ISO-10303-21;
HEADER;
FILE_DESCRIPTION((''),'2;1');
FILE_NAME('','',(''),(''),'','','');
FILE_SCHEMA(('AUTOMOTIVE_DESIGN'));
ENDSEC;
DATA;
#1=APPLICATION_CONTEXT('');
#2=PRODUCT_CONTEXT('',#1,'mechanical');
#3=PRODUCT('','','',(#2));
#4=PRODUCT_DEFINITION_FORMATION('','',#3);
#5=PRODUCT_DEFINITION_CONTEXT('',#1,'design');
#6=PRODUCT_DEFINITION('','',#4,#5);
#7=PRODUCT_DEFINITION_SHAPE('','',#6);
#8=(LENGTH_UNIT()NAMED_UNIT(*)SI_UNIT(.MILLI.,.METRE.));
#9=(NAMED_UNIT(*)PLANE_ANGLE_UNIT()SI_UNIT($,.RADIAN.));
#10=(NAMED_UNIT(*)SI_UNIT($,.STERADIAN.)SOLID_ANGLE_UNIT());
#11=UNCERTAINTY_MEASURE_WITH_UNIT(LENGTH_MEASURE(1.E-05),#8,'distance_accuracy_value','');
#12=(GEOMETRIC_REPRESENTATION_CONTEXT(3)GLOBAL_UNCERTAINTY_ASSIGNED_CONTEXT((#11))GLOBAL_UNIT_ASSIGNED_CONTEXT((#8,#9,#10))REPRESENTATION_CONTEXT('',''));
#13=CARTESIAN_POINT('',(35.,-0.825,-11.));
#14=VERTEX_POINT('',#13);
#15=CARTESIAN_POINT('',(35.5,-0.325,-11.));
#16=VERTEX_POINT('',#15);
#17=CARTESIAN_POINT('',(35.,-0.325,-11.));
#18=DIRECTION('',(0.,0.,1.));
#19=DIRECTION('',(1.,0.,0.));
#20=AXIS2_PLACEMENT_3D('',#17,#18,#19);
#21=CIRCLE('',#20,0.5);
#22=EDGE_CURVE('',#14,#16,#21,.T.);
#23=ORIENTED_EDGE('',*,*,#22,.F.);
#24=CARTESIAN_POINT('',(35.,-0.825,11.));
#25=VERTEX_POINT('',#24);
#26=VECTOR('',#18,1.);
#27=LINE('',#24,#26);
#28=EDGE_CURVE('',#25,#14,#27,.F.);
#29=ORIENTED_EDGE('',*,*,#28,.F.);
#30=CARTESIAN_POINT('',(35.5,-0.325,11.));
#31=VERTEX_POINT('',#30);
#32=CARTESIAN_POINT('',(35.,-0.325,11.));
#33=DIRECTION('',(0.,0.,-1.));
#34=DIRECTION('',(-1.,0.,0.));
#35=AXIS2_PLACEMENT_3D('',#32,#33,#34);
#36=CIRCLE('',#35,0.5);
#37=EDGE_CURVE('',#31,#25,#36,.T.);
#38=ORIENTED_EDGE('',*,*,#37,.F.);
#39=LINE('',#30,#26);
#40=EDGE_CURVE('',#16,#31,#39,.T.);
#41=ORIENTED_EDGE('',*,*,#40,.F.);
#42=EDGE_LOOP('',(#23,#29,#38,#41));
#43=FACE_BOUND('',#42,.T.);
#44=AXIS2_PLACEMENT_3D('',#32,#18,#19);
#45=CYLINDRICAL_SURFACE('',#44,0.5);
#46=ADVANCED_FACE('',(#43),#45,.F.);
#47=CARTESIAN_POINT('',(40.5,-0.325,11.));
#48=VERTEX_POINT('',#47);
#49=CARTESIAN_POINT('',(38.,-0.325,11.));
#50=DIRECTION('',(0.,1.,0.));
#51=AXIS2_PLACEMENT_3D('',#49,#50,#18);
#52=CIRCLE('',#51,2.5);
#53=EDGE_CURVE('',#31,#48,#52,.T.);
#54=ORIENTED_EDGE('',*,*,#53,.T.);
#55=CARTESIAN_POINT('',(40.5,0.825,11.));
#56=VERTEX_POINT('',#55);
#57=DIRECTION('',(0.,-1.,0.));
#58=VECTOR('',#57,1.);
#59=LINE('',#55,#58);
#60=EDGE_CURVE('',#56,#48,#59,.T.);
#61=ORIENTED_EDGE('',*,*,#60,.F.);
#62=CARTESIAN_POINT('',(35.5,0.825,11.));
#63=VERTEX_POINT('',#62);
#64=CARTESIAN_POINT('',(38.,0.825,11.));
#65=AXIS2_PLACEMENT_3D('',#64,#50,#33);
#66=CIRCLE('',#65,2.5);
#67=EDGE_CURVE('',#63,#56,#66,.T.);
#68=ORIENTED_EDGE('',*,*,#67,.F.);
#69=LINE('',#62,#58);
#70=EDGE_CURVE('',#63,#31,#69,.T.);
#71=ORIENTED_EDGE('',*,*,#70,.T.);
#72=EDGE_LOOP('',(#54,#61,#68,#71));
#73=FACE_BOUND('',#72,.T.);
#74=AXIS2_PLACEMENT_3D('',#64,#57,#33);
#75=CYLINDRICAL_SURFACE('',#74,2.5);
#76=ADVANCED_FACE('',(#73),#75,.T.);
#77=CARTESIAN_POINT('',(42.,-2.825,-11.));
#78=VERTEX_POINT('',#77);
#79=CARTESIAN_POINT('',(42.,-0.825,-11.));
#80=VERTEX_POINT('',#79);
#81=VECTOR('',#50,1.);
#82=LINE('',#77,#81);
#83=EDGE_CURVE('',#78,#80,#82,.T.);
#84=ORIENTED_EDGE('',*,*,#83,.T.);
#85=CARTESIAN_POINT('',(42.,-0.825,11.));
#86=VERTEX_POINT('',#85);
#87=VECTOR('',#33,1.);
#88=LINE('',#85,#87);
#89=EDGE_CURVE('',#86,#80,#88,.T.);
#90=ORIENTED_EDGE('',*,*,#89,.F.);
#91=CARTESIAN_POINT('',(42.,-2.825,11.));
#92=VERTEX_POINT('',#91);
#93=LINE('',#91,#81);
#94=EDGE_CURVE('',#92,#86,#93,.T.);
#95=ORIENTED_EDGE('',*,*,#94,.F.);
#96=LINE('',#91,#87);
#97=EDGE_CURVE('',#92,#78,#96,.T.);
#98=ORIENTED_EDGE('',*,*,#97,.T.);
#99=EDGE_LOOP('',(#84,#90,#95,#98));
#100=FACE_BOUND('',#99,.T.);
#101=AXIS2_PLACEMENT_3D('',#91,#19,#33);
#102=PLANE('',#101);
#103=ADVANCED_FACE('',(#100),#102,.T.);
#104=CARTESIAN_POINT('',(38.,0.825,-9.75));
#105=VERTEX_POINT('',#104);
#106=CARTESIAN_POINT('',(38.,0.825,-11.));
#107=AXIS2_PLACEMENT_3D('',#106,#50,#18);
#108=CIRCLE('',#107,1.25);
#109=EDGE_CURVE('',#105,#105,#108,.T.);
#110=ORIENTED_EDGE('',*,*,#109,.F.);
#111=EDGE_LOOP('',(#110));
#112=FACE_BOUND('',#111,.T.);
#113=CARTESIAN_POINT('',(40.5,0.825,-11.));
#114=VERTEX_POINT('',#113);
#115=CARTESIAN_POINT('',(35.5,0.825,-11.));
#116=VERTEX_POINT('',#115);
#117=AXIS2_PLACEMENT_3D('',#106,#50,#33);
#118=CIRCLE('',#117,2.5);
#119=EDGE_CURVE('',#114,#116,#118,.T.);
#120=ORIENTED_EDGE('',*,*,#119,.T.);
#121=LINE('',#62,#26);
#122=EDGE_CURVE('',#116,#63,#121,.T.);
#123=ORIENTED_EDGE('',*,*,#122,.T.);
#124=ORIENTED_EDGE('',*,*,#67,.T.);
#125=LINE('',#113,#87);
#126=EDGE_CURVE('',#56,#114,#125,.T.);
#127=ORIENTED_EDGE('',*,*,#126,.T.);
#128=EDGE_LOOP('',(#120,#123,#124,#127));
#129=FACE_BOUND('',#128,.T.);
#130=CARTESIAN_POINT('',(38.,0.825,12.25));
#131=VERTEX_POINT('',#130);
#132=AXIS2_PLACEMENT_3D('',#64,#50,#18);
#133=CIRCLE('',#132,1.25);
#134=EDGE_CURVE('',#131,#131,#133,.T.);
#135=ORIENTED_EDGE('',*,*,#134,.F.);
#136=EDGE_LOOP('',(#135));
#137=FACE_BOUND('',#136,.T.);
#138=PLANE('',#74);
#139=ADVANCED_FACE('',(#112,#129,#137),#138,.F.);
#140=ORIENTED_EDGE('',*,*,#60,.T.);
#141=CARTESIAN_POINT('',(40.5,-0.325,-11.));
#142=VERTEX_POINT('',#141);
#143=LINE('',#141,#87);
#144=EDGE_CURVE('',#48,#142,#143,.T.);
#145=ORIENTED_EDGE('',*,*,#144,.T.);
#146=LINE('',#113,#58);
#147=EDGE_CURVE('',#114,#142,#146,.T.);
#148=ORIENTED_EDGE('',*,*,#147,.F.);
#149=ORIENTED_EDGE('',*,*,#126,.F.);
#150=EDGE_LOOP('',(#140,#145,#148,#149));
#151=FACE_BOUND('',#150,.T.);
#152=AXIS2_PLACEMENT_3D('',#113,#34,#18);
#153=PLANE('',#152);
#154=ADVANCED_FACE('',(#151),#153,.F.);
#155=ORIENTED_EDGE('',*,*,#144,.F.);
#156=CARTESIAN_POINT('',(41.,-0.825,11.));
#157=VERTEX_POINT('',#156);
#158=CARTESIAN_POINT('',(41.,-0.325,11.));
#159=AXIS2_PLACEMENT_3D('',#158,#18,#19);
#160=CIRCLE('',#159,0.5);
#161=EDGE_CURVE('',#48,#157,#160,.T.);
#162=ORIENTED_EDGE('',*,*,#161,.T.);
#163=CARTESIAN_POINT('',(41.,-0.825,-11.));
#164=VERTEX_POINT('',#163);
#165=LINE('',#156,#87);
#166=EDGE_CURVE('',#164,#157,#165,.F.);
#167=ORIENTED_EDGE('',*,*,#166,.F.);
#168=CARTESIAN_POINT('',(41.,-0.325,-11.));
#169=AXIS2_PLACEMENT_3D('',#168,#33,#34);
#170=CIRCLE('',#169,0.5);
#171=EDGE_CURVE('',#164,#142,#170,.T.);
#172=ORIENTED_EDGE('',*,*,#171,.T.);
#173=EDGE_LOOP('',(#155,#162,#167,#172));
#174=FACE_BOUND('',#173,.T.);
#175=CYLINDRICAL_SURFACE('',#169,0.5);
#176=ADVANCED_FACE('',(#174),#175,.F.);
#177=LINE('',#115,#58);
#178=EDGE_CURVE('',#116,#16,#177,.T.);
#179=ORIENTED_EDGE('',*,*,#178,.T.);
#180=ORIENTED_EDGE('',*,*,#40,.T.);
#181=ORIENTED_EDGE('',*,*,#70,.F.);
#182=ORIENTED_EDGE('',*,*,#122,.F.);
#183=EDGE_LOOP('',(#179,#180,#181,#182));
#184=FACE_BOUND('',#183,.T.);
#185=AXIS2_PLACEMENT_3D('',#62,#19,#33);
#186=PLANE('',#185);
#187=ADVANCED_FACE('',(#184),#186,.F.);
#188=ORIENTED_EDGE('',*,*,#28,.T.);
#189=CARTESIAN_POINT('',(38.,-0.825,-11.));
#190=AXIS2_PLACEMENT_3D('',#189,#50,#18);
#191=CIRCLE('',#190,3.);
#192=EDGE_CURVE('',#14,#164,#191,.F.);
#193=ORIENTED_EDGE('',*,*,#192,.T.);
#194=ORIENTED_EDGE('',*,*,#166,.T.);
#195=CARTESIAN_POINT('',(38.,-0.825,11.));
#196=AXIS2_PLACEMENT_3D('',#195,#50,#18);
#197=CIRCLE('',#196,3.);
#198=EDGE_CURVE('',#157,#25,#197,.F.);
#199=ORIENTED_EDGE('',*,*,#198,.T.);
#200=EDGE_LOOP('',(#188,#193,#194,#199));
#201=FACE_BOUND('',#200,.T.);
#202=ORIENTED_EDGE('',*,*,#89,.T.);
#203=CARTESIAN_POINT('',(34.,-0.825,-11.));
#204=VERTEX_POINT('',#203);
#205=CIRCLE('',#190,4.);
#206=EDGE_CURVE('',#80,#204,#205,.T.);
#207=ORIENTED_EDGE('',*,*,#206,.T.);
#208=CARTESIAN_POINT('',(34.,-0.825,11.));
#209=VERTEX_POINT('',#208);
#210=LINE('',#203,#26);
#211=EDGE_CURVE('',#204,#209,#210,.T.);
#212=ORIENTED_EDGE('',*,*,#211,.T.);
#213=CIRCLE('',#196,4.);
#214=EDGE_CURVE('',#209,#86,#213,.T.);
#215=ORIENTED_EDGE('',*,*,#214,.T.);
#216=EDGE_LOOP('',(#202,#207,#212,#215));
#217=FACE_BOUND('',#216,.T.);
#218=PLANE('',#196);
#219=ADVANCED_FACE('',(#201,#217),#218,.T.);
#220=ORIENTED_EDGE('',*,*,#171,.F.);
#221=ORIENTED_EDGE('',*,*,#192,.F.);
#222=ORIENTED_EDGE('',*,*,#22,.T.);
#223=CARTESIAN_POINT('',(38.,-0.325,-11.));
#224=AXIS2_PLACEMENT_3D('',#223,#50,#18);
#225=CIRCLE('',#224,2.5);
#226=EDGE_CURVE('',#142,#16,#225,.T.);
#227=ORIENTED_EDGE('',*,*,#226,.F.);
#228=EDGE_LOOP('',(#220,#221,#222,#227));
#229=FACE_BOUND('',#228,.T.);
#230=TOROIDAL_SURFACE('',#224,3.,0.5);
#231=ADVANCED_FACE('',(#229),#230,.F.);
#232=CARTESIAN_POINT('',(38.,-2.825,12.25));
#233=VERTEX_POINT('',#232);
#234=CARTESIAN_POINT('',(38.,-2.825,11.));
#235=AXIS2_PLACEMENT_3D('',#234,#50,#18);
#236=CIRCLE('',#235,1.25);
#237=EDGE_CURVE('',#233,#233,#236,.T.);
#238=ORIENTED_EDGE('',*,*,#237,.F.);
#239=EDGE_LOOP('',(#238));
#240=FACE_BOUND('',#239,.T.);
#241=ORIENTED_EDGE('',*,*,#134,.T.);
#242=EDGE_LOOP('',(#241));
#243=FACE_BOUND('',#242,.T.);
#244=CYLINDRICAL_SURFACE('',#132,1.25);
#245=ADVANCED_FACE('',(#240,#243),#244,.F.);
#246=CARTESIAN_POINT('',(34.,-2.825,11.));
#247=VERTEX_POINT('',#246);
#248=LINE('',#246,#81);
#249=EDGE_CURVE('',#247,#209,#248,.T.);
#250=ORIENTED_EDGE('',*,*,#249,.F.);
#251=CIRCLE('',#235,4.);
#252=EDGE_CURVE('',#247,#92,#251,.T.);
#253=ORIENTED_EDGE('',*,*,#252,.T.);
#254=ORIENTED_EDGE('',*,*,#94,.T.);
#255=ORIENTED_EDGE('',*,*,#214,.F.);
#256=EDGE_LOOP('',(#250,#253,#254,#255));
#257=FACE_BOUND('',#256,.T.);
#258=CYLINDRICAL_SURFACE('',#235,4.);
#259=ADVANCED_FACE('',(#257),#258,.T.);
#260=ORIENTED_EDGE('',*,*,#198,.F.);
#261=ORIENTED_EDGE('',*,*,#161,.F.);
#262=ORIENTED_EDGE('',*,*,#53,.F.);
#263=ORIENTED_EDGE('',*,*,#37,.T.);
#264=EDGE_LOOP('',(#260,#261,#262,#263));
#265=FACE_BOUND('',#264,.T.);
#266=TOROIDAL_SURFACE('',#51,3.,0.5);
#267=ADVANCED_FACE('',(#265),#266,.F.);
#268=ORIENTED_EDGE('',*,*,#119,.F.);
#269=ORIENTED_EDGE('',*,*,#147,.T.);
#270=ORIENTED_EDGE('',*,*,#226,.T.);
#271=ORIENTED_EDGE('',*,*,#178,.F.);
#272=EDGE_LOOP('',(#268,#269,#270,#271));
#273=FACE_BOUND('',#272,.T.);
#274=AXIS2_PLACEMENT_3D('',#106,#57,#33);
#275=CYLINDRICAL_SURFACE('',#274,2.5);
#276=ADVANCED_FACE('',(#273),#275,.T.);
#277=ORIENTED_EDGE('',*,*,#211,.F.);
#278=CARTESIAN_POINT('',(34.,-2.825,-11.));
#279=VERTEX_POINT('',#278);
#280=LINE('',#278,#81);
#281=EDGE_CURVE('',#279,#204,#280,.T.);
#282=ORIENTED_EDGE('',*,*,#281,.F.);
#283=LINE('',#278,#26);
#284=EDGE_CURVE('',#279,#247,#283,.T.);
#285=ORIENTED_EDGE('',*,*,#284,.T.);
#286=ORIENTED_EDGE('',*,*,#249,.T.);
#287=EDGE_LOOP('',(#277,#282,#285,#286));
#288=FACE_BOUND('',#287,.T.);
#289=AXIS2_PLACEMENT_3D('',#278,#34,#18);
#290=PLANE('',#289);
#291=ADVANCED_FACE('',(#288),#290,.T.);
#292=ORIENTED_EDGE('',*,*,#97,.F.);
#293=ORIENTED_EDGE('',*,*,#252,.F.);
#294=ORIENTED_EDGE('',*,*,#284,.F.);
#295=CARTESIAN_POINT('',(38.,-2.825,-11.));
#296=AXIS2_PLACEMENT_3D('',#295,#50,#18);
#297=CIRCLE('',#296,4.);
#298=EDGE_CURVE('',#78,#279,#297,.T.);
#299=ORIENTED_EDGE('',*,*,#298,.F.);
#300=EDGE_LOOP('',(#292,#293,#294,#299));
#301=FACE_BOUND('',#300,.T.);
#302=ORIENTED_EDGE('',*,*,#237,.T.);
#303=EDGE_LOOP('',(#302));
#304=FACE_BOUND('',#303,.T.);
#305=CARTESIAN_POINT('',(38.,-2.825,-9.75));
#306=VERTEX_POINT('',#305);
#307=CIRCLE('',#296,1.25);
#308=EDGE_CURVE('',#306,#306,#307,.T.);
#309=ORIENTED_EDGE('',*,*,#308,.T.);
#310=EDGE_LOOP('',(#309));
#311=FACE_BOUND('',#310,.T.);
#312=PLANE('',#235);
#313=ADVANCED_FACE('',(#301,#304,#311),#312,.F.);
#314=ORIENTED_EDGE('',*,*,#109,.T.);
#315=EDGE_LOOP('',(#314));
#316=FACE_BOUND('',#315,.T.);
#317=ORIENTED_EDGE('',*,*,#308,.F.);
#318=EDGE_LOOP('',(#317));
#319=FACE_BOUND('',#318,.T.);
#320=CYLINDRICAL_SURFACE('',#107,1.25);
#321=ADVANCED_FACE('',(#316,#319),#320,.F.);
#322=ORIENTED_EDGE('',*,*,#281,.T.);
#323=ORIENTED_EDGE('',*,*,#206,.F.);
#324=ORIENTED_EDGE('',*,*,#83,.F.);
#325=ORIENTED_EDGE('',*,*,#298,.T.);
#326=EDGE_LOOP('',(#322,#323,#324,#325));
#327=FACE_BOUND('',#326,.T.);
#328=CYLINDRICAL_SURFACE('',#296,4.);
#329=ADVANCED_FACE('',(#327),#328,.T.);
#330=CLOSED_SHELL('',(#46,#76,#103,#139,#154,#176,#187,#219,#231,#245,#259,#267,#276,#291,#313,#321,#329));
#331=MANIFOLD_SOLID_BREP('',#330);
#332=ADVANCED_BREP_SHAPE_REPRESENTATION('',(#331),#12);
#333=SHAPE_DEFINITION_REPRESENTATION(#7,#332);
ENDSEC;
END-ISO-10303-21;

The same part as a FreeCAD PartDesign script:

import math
import FreeCAD as App
import Part
import Sketcher

V = App.Vector


def edges_at(feature, points):
    """Names of the edges that pass closest to the given points."""
    edges = feature.Shape.Edges
    near = lambda p: min(range(len(edges)), key=lambda i: edges[i].distToShape(Part.Vertex(*p))[0])
    return sorted({f"Edge{near(p) + 1}" for p in points})

doc = App.newDocument("Part")
params = doc.addObject("Spreadsheet::Sheet", "Params")
for row, (alias, value) in enumerate([
    ("sketch1_radius", "4 mm"),
    ("sketch1_height", "22 mm"),
    ("pad1_length", "2 mm"),
    ("sketch2_radius", "2.5 mm"),
    ("sketch2_height", "22 mm"),
    ("pad2_length", "1.65 mm"),
    ("sketch3_diameter", "2.5 mm"),
    ("hole_diameter", "2.5 mm"),
    ("hole_depth", "3.65 mm"),
    ("fillet_radius", "0.5 mm"),
], start=1):
    params.set(f"A{row}", alias)
    params.set(f"B{row}", "=" + value)
    params.setAlias(f"B{row}", alias)

body = doc.addObject("PartDesign::Body", "Body")

# Sketch on XZ plane
sketch1 = doc.addObject("Sketcher::SketchObject", "Sketch")
body.addObject(sketch1)
sketch1.AttachmentSupport = (doc.XZ_Plane, [""])
sketch1.MapMode = "FlatFace"
sketch1.AttachmentOffset = App.Placement(V(0, 0, 0.825), App.Rotation())
sketch1.addGeometry([
    Part.LineSegment(V(42, 11, 0), V(42, -11, 0)),
    Part.ArcOfCircle(Part.Circle(V(38, -11, 0), V(0, 0, 1), 4), math.radians(180), math.radians(360)),
    Part.LineSegment(V(34, -11, 0), V(34, 11, 0)),
    Part.ArcOfCircle(Part.Circle(V(38, 11, 0), V(0, 0, 1), 4), math.radians(0), math.radians(180)),
], False)
sketch1.addConstraint([
    Sketcher.Constraint("Tangent", 0, 2, 1, 2),
    Sketcher.Constraint("Tangent", 1, 1, 2, 1),
    Sketcher.Constraint("Tangent", 2, 2, 3, 2),
    Sketcher.Constraint("Tangent", 3, 1, 0, 1),
    Sketcher.Constraint("Vertical", 0),
    Sketcher.Constraint("Vertical", 2),
    Sketcher.Constraint("Radius", 1, 4.0),
    Sketcher.Constraint("DistanceY", 0, 2, 0, 1, 22.0),
    Sketcher.Constraint("DistanceX", -1, 1, 1, 3, 38.0),
    Sketcher.Constraint("DistanceY", 1, 3, -1, 1, 11.0),
])
sketch1.setExpression("Constraints[6]", "Params.sketch1_radius")
sketch1.setExpression("Constraints[7]", "Params.sketch1_height")
pad1 = doc.addObject("PartDesign::Pad", "Pad")
body.addObject(pad1)
pad1.Profile = sketch1
pad1.setExpression("Length", "Params.pad1_length")

# Sketch on XZ plane
sketch2 = doc.addObject("Sketcher::SketchObject", "Sketch001")
body.addObject(sketch2)
sketch2.AttachmentSupport = (doc.XZ_Plane, [""])
sketch2.MapMode = "FlatFace"
sketch2.AttachmentOffset = App.Placement(V(0, 0, 0.825), App.Rotation())
sketch2.addGeometry([
    Part.LineSegment(V(35.5, -11, 0), V(35.5, 11, 0)),
    Part.ArcOfCircle(Part.Circle(V(38, 11, 0), V(0, 0, 1), 2.5), math.radians(0), math.radians(180)),
    Part.LineSegment(V(40.5, 11, 0), V(40.5, -11, 0)),
    Part.ArcOfCircle(Part.Circle(V(38, -11, 0), V(0, 0, 1), 2.5), math.radians(180), math.radians(360)),
], False)
sketch2.addConstraint([
    Sketcher.Constraint("Tangent", 0, 2, 1, 2),
    Sketcher.Constraint("Tangent", 1, 1, 2, 1),
    Sketcher.Constraint("Tangent", 2, 2, 3, 2),
    Sketcher.Constraint("Tangent", 3, 1, 0, 1),
    Sketcher.Constraint("Vertical", 0),
    Sketcher.Constraint("Vertical", 2),
    Sketcher.Constraint("Radius", 1, 2.5),
    Sketcher.Constraint("DistanceY", 0, 1, 0, 2, 22.0),
    Sketcher.Constraint("DistanceX", -1, 1, 1, 3, 38.0),
    Sketcher.Constraint("DistanceY", -1, 1, 1, 3, 11.0),
])
sketch2.setExpression("Constraints[6]", "Params.sketch2_radius")
sketch2.setExpression("Constraints[7]", "Params.sketch2_height")
pad2 = doc.addObject("PartDesign::Pad", "Pad001")
body.addObject(pad2)
pad2.Profile = sketch2
pad2.setExpression("Length", "Params.pad2_length")
pad2.Reversed = True

# Sketch on XZ plane
sketch3 = doc.addObject("Sketcher::SketchObject", "Sketch002")
body.addObject(sketch3)
sketch3.AttachmentSupport = (doc.XZ_Plane, [""])
sketch3.MapMode = "FlatFace"
sketch3.AttachmentOffset = App.Placement(V(0, 0, -0.825), App.Rotation())
sketch3.addGeometry([
    Part.Circle(V(38, 11, 0), V(0, 0, 1), 1.2),
    Part.Circle(V(38, -11, 0), V(0, 0, 1), 1.2),
], False)
sketch3.addConstraint([
    Sketcher.Constraint("Equal", 0, 1),
    Sketcher.Constraint("Symmetric", 0, 3, 1, 3, -1),
    Sketcher.Constraint("Diameter", 0, 2.5),
    Sketcher.Constraint("DistanceX", -1, 1, 0, 3, 38.0),
    Sketcher.Constraint("DistanceY", -1, 1, 0, 3, 11.0),
])
sketch3.setExpression("Constraints[2]", "Params.sketch3_diameter")
doc.recompute()
hole = doc.addObject("PartDesign::Hole", "Hole")
body.addObject(hole)
hole.Profile = sketch3
hole.ThreadType = "None"
hole.setExpression("Diameter", "Params.hole_diameter")
hole.DepthType = "Dimension"
hole.setExpression("Depth", "Params.hole_depth")
hole.DrillPoint = "Flat"
hole.Reversed = True
doc.recompute()

fillet = doc.addObject("PartDesign::Fillet", "Fillet")
body.addObject(fillet)
fillet.Base = (hole, edges_at(hole, [
    (38, -0.825, 13.5),
    (40.5, -0.825, 0),
    (38, -0.825, -13.5),
    (35.5, -0.825, 0),
]))
fillet.setExpression("Radius", "Params.fillet_radius")

doc.recompute()
